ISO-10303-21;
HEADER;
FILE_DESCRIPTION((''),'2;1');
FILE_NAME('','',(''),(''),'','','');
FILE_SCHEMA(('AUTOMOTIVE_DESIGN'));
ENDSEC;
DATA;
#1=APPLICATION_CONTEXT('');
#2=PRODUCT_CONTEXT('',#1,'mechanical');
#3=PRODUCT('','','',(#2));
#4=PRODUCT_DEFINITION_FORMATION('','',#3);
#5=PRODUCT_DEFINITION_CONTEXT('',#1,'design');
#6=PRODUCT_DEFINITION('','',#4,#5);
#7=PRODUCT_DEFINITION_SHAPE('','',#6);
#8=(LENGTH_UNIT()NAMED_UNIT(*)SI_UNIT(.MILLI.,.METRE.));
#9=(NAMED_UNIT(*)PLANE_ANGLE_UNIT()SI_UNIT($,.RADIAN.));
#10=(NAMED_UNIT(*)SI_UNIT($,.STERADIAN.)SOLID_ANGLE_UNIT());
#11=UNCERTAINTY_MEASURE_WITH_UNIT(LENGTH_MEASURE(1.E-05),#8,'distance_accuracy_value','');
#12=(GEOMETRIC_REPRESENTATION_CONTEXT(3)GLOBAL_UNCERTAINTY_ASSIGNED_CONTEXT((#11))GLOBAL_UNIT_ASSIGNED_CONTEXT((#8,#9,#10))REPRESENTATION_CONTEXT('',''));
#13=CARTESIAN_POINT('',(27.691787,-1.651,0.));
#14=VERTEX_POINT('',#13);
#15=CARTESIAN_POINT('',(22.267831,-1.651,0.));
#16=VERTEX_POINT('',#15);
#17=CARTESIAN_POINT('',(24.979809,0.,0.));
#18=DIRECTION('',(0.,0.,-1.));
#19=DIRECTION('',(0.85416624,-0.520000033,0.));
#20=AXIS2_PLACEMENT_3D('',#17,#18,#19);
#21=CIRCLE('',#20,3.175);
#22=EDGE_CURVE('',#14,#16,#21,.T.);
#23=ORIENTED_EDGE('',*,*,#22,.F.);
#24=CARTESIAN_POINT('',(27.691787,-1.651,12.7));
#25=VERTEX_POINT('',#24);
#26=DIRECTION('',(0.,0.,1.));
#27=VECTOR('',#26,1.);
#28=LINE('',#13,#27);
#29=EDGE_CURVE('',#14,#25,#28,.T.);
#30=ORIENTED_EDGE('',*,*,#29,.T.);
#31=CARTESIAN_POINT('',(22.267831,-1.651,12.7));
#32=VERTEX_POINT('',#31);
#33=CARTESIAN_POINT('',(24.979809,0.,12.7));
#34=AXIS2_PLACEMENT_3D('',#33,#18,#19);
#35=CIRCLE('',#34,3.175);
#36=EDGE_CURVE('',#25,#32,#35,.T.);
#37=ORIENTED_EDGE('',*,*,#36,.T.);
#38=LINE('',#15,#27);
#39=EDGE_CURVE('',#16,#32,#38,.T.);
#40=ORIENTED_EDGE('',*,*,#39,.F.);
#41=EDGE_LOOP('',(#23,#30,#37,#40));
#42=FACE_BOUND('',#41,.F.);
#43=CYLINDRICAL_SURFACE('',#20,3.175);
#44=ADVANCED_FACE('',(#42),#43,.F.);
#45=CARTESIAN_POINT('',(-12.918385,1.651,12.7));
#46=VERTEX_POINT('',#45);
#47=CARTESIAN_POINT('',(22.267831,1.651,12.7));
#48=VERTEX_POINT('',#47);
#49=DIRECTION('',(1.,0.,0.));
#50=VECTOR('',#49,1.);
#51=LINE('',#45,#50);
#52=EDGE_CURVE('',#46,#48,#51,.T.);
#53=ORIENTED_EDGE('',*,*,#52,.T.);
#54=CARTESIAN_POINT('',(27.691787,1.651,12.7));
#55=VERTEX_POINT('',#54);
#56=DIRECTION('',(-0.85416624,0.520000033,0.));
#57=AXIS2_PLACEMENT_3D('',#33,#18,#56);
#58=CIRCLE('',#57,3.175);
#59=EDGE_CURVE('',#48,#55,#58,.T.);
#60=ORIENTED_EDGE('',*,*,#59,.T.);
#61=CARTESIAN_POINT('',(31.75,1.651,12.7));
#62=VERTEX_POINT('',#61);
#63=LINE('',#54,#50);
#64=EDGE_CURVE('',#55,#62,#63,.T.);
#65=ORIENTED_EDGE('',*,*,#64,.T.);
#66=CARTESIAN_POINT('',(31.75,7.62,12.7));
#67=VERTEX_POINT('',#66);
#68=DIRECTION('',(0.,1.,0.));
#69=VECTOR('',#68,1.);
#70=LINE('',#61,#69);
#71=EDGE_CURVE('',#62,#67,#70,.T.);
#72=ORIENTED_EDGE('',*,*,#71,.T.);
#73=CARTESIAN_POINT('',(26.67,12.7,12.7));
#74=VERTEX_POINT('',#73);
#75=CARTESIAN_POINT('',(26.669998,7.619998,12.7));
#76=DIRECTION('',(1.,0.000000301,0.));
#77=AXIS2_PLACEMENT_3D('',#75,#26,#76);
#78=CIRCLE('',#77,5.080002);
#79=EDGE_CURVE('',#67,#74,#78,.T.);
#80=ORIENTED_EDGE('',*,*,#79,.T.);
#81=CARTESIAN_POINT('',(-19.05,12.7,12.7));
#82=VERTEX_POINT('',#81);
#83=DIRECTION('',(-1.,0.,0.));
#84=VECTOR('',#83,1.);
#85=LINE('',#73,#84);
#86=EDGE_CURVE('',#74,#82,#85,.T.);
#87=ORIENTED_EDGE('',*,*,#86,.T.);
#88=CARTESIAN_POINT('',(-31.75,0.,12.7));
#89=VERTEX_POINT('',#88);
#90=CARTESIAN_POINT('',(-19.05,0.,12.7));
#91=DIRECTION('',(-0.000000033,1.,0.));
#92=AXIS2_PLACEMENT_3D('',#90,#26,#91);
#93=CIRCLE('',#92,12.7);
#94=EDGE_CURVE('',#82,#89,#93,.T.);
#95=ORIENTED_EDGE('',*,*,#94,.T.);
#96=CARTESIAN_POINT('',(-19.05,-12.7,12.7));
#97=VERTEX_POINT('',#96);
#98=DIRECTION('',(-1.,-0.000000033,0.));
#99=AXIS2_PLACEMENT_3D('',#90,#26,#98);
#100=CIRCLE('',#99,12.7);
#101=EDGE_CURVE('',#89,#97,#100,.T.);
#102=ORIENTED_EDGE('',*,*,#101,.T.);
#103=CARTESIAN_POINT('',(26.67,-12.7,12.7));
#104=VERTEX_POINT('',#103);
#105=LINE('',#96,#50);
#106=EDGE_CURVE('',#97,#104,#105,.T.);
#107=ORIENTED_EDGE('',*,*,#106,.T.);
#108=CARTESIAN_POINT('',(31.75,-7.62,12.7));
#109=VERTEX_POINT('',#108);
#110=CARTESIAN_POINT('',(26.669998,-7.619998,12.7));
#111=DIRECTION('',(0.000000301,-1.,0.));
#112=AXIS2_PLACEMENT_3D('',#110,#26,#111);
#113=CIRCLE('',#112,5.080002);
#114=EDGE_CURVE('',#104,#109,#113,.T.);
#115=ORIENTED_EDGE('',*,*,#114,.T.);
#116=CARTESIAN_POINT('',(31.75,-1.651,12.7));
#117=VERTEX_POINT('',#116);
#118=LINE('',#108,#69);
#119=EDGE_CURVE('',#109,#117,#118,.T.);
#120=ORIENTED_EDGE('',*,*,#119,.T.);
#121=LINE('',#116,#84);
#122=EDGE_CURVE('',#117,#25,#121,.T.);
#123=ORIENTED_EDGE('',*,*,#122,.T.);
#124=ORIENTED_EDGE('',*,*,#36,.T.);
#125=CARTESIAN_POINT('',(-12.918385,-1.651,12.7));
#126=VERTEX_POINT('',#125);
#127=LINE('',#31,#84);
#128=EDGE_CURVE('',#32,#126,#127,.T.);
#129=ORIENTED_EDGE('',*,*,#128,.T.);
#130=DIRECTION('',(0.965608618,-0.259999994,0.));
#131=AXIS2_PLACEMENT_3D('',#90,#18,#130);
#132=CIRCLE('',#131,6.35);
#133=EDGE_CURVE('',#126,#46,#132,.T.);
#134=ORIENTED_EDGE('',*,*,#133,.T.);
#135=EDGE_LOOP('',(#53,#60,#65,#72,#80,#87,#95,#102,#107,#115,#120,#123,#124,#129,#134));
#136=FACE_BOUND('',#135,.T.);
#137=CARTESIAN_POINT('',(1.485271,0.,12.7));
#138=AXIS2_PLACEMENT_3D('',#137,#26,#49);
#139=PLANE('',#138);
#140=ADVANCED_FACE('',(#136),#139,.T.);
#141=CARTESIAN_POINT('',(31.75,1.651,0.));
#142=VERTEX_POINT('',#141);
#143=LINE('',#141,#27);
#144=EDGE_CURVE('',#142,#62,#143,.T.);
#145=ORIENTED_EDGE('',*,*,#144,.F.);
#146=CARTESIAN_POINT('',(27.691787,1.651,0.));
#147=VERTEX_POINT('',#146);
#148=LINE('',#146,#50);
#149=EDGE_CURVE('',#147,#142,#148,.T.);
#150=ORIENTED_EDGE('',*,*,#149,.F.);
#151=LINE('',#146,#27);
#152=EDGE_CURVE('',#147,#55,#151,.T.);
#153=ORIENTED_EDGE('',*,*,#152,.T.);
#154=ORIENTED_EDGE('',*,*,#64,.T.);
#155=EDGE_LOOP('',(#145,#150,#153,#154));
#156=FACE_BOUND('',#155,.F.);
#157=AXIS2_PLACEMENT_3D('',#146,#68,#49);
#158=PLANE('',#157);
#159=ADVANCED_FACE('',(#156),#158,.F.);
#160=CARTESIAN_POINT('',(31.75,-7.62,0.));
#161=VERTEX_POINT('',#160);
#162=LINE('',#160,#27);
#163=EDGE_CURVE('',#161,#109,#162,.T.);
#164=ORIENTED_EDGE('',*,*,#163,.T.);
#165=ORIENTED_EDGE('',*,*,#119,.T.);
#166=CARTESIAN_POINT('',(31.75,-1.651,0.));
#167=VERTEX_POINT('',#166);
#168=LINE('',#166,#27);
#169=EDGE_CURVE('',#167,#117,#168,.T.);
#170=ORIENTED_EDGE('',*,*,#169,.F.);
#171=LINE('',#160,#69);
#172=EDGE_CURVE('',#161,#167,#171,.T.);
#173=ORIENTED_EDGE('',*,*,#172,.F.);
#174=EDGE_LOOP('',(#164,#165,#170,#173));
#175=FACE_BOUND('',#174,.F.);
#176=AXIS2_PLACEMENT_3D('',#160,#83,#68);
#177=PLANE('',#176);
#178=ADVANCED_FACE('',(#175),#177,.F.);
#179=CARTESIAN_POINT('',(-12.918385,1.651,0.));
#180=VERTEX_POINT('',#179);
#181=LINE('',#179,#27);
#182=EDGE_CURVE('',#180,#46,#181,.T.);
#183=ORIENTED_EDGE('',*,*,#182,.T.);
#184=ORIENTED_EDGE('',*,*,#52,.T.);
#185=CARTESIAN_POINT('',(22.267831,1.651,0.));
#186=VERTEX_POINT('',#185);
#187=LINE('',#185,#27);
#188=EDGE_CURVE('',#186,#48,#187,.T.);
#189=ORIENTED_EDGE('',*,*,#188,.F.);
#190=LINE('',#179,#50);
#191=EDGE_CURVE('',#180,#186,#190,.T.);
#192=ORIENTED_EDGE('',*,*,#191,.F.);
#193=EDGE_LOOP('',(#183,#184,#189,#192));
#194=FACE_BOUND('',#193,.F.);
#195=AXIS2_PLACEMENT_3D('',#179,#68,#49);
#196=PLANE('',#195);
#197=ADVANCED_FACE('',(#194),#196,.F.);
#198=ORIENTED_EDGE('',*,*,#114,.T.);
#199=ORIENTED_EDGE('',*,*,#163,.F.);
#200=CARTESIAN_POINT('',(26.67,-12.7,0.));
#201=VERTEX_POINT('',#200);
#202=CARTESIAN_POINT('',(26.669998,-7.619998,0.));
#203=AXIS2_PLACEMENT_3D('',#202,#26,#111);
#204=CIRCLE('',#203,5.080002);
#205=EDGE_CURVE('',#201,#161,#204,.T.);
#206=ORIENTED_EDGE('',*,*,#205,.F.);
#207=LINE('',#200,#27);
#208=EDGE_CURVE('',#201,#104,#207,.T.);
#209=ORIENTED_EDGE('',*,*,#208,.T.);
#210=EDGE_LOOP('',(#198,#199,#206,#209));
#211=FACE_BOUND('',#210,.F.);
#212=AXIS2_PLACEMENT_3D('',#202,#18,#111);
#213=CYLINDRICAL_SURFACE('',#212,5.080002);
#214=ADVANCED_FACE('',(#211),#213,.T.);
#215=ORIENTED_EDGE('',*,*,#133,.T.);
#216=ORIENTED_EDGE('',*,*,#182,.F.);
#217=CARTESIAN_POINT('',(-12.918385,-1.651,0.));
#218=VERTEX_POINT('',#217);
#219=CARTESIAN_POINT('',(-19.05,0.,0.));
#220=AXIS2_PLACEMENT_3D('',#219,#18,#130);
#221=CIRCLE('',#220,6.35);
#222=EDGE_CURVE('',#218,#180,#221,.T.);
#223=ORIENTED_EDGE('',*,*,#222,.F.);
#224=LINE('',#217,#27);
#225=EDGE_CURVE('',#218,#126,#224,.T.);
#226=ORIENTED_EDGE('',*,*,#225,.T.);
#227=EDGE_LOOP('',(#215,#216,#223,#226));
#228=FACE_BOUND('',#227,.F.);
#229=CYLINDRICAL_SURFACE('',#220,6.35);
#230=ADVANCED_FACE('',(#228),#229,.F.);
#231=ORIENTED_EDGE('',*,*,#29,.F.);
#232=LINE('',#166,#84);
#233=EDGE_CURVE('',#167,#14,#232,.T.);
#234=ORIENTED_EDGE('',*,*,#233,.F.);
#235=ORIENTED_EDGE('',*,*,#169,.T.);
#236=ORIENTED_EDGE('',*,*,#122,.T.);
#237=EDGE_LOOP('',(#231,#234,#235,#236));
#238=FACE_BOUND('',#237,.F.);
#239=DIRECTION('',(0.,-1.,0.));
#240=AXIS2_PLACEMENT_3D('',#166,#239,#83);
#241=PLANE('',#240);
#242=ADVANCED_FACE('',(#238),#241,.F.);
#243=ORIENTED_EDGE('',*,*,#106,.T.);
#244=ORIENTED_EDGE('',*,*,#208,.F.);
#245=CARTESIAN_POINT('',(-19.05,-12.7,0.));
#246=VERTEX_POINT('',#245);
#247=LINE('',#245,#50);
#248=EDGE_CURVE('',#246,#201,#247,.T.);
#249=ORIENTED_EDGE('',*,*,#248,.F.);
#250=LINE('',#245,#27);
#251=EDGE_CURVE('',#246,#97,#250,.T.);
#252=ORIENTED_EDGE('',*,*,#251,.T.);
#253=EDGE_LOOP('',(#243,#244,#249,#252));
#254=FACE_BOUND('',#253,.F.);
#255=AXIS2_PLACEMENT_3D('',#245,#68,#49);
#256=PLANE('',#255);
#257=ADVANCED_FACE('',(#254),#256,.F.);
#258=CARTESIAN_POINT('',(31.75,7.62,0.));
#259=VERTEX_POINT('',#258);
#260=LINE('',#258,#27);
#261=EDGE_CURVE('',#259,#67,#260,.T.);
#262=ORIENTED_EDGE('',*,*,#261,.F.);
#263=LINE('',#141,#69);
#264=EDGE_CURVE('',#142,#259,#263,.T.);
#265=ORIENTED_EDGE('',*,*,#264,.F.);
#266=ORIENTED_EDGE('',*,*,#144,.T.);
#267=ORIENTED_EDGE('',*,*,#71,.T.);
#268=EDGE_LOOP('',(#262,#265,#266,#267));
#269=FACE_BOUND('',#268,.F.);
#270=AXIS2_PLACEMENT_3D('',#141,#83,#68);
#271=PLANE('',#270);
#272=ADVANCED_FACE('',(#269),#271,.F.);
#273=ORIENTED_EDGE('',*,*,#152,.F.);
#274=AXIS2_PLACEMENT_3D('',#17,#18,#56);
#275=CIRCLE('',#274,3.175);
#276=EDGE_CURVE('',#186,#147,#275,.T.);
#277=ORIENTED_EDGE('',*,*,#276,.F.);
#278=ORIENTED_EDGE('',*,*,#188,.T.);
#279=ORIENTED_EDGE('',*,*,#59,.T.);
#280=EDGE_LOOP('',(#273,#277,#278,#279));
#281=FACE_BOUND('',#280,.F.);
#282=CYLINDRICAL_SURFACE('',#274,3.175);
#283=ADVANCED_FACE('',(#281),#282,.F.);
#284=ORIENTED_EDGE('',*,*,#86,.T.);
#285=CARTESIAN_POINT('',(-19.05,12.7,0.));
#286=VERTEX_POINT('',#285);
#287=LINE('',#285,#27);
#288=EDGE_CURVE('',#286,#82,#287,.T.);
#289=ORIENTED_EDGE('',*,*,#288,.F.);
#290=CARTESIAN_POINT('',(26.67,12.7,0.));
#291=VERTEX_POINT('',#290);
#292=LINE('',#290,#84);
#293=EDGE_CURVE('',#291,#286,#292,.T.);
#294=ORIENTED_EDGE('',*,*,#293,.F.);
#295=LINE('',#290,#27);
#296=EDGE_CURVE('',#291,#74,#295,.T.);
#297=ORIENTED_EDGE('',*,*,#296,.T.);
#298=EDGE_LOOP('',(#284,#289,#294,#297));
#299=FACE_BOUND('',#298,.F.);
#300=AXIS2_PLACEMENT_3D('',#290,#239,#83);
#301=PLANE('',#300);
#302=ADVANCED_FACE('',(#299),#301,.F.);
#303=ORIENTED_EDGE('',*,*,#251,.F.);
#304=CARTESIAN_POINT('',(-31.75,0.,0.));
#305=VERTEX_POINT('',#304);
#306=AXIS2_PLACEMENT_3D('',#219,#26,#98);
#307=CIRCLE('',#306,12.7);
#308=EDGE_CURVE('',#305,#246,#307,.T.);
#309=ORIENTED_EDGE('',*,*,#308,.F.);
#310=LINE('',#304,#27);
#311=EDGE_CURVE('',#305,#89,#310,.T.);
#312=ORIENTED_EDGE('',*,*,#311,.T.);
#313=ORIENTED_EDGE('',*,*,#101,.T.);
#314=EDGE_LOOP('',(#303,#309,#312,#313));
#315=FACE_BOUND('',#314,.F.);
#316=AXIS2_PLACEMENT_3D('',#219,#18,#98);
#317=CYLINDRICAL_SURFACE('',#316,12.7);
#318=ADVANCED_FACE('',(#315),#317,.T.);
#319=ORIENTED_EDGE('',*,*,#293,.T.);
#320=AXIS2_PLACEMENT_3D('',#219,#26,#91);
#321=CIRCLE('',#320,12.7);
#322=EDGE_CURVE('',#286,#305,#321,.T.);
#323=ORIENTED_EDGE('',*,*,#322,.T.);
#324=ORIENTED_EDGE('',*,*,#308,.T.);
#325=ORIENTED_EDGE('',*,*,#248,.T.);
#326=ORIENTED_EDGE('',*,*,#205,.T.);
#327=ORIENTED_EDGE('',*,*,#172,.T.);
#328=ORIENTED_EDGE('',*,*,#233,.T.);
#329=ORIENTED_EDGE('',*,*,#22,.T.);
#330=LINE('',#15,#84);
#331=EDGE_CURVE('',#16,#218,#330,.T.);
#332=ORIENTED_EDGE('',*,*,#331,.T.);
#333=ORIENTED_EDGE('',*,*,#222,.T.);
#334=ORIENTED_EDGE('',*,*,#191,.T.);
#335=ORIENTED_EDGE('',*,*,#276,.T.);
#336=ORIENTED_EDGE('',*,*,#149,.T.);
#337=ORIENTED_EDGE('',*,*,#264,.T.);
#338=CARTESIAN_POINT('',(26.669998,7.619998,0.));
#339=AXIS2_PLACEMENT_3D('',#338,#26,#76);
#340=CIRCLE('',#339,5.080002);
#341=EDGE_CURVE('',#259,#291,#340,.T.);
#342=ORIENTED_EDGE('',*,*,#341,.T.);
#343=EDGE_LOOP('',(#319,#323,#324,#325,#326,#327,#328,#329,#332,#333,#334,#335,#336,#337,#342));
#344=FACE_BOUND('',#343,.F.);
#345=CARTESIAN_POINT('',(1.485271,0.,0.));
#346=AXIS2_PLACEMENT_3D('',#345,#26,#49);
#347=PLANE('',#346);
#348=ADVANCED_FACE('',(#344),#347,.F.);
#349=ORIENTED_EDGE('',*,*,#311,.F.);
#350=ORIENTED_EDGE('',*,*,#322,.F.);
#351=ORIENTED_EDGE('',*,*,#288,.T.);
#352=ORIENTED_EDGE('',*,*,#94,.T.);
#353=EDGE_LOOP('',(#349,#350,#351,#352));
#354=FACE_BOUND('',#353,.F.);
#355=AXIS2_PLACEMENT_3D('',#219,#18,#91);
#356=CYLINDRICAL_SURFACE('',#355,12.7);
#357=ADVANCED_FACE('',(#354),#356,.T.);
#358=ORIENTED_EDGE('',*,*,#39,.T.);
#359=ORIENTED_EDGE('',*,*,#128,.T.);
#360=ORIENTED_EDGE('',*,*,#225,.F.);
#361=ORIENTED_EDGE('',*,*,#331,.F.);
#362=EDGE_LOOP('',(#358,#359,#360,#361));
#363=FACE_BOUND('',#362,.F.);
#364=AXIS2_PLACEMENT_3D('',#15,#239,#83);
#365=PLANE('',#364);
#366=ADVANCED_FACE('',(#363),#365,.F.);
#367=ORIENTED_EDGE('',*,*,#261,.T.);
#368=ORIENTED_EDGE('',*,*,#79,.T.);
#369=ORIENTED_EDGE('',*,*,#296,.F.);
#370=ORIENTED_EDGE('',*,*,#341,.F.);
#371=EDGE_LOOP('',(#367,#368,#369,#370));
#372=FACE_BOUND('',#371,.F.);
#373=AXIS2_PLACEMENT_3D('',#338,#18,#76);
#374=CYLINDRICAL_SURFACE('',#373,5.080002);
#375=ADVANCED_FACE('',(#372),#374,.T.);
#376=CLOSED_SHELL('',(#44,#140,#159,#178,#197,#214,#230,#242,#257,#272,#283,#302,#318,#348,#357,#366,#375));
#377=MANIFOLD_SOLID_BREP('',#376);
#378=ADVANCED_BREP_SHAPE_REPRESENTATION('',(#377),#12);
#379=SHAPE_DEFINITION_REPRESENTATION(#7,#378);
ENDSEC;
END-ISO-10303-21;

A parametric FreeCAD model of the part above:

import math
import FreeCAD as App
import Part
import Sketcher
from FreeCAD import Vector
Q = App.Units.Quantity

doc = App.newDocument("Part")
params = doc.addObject("Spreadsheet::Sheet", "Params")
for row, (alias, value) in enumerate([
    ("sketch1_radius", "0.2000001 in"),
    ("sketch1_radius2", "0.5 in"),
    ("sketch1_radius3", "0.25 in"),
    ("sketch1_width", "1.8 in"),
    ("sketch1_radius4", "0.125 in"),
    ("pad1_length", "0.5 in"),
], start=1):
    params.set(f"A{row}", alias)
    params.set(f"B{row}", "=" + value)
    params.setAlias(f"B{row}", alias)

body = doc.addObject("PartDesign::Body", "Body")

# Sketch on XY plane
sketch1 = body.newObject("Sketcher::SketchObject", "Sketch")
sketch1.AttachmentSupport = (doc.getObject("XY_Plane"), [""])
sketch1.MapMode = "FlatFace"
sketch1.addGeometry(Part.LineSegment(Vector(-19.1, -12.7, 0), Vector(26.7, -12.7, 0)), False)
sketch1.addGeometry(Part.ArcOfCircle(Part.Circle(Vector(26.7, -7.6, 0), Vector(0, 0, 1), 5.1), math.radians(-90), math.radians(0)), False)
sketch1.addGeometry(Part.LineSegment(Vector(31.8, -7.6, 0), Vector(31.8, -1.7, 0)), False)
sketch1.addGeometry(Part.LineSegment(Vector(31.8, -1.7, 0), Vector(27.7, -1.7, 0)), False)
sketch1.addGeometry(Part.ArcOfCircle(Part.Circle(Vector(25, 0, 0), Vector(0, 0, 1), 3.2), math.radians(-149), math.radians(-31)), False)
sketch1.addGeometry(Part.LineSegment(Vector(22.3, -1.7, 0), Vector(-12.9, -1.7, 0)), False)
sketch1.addGeometry(Part.ArcOfCircle(Part.Circle(Vector(-19, 0, 0), Vector(0, 0, 1), 6.4), math.radians(15), math.radians(345)), False)
sketch1.addGeometry(Part.LineSegment(Vector(-12.9, 1.7, 0), Vector(22.3, 1.7, 0)), False)
sketch1.addGeometry(Part.ArcOfCircle(Part.Circle(Vector(25, 0, 0), Vector(0, 0, 1), 3.2), math.radians(31), math.radians(149)), False)
sketch1.addGeometry(Part.LineSegment(Vector(27.7, 1.7, 0), Vector(31.8, 1.7, 0)), False)
sketch1.addGeometry(Part.LineSegment(Vector(31.8, 1.7, 0), Vector(31.8, 7.6, 0)), False)
sketch1.addGeometry(Part.ArcOfCircle(Part.Circle(Vector(26.7, 7.6, 0), Vector(0, 0, 1), 5.1), math.radians(0), math.radians(90)), False)
sketch1.addGeometry(Part.LineSegment(Vector(26.7, 12.7, 0), Vector(-19.1, 12.7, 0)), False)
sketch1.addGeometry(Part.ArcOfCircle(Part.Circle(Vector(-19, 0, 0), Vector(0, 0, 1), 12.7), math.radians(90), math.radians(180)), False)
sketch1.addGeometry(Part.ArcOfCircle(Part.Circle(Vector(-19, 0, 0), Vector(0, 0, 1), 12.7), math.radians(-180), math.radians(-90)), False)
sketch1.addConstraint(Sketcher.Constraint("Tangent", 0, 2, 1, 1))
sketch1.addConstraint(Sketcher.Constraint("Tangent", 1, 2, 2, 1))
sketch1.addConstraint(Sketcher.Constraint("Coincident", 2, 2, 3, 1))
sketch1.addConstraint(Sketcher.Constraint("Coincident", 3, 2, 4, 2))
sketch1.addConstraint(Sketcher.Constraint("Coincident", 4, 1, 5, 1))
sketch1.addConstraint(Sketcher.Constraint("Coincident", 5, 2, 6, 2))
sketch1.addConstraint(Sketcher.Constraint("Coincident", 6, 1, 7, 1))
sketch1.addConstraint(Sketcher.Constraint("Coincident", 7, 2, 8, 2))
sketch1.addConstraint(Sketcher.Constraint("Coincident", 8, 1, 9, 1))
sketch1.addConstraint(Sketcher.Constraint("Coincident", 9, 2, 10, 1))
sketch1.addConstraint(Sketcher.Constraint("Tangent", 10, 2, 11, 1))
sketch1.addConstraint(Sketcher.Constraint("Tangent", 11, 2, 12, 1))
sketch1.addConstraint(Sketcher.Constraint("Tangent", 12, 2, 13, 1))
sketch1.addConstraint(Sketcher.Constraint("Tangent", 13, 2, 14, 1))
sketch1.addConstraint(Sketcher.Constraint("Tangent", 14, 2, 0, 1))
sketch1.addConstraint(Sketcher.Constraint("Horizontal", 0))
sketch1.addConstraint(Sketcher.Constraint("Vertical", 2))
sketch1.addConstraint(Sketcher.Constraint("Horizontal", 3))
sketch1.addConstraint(Sketcher.Constraint("Horizontal", 5))
sketch1.addConstraint(Sketcher.Constraint("Horizontal", 7))
sketch1.addConstraint(Sketcher.Constraint("Horizontal", 9))
sketch1.addConstraint(Sketcher.Constraint("Vertical", 10))
sketch1.addConstraint(Sketcher.Constraint("Horizontal", 12))
sketch1.addConstraint(Sketcher.Constraint("Coincident", 8, 3, 4, 3))
sketch1.addConstraint(Sketcher.Constraint("Coincident", 13, 3, 6, 3))
sketch1.addConstraint(Sketcher.Constraint("Equal", 4, 8))
sketch1.addConstraint(Sketcher.Constraint("Equal", 1, 11))
sketch1.addConstraint(Sketcher.Constraint("Equal", 13, 14))
sketch1.addConstraint(Sketcher.Constraint("Symmetric", 1, 3, 11, 3, -1))
sketch1.addConstraint(Sketcher.Constraint("Symmetric", 4, 1, 7, 2, -1))
sketch1.addConstraint(Sketcher.Constraint("PointOnObject", 13, 2, -1))
sketch1.addConstraint(Sketcher.Constraint("Horizontal", 3, 2, 4, 1))
sketch1.addConstraint(Sketcher.Constraint("Horizontal", 7, 2, 8, 1))
sketch1.addConstraint(Sketcher.Constraint("Radius", 1, Q("0.2000001 in")))
sketch1.addConstraint(Sketcher.Constraint("Radius", 13, Q("0.5 in")))
sketch1.addConstraint(Sketcher.Constraint("Radius", 6, Q("0.25 in")))
sketch1.addConstraint(Sketcher.Constraint("DistanceX", 0, 1, 0, 2, Q("1.8 in")))
sketch1.addConstraint(Sketcher.Constraint("Radius", 4, Q("0.125 in")))
sketch1.addConstraint(Sketcher.Constraint("DistanceY", 2, 1, 2, 2, Q("0.235 in")))
sketch1.addConstraint(Sketcher.Constraint("DistanceX", -1, 1, 1, 3, Q("1.0499999 in")))
sketch1.addConstraint(Sketcher.Constraint("DistanceX", 3, 2, 3, 1, Q("4.058213 mm")))
sketch1.setExpression("Constraints[33]", "Params.sketch1_radius")
sketch1.setExpression("Constraints[34]", "Params.sketch1_radius2")
sketch1.setExpression("Constraints[35]", "Params.sketch1_radius3")
sketch1.setExpression("Constraints[36]", "Params.sketch1_width")
sketch1.setExpression("Constraints[37]", "Params.sketch1_radius4")
pad1 = body.newObject("PartDesign::Pad", "Pad")
pad1.Profile = sketch1
pad1.setExpression("Length", "Params.pad1_length")

doc.recompute()
